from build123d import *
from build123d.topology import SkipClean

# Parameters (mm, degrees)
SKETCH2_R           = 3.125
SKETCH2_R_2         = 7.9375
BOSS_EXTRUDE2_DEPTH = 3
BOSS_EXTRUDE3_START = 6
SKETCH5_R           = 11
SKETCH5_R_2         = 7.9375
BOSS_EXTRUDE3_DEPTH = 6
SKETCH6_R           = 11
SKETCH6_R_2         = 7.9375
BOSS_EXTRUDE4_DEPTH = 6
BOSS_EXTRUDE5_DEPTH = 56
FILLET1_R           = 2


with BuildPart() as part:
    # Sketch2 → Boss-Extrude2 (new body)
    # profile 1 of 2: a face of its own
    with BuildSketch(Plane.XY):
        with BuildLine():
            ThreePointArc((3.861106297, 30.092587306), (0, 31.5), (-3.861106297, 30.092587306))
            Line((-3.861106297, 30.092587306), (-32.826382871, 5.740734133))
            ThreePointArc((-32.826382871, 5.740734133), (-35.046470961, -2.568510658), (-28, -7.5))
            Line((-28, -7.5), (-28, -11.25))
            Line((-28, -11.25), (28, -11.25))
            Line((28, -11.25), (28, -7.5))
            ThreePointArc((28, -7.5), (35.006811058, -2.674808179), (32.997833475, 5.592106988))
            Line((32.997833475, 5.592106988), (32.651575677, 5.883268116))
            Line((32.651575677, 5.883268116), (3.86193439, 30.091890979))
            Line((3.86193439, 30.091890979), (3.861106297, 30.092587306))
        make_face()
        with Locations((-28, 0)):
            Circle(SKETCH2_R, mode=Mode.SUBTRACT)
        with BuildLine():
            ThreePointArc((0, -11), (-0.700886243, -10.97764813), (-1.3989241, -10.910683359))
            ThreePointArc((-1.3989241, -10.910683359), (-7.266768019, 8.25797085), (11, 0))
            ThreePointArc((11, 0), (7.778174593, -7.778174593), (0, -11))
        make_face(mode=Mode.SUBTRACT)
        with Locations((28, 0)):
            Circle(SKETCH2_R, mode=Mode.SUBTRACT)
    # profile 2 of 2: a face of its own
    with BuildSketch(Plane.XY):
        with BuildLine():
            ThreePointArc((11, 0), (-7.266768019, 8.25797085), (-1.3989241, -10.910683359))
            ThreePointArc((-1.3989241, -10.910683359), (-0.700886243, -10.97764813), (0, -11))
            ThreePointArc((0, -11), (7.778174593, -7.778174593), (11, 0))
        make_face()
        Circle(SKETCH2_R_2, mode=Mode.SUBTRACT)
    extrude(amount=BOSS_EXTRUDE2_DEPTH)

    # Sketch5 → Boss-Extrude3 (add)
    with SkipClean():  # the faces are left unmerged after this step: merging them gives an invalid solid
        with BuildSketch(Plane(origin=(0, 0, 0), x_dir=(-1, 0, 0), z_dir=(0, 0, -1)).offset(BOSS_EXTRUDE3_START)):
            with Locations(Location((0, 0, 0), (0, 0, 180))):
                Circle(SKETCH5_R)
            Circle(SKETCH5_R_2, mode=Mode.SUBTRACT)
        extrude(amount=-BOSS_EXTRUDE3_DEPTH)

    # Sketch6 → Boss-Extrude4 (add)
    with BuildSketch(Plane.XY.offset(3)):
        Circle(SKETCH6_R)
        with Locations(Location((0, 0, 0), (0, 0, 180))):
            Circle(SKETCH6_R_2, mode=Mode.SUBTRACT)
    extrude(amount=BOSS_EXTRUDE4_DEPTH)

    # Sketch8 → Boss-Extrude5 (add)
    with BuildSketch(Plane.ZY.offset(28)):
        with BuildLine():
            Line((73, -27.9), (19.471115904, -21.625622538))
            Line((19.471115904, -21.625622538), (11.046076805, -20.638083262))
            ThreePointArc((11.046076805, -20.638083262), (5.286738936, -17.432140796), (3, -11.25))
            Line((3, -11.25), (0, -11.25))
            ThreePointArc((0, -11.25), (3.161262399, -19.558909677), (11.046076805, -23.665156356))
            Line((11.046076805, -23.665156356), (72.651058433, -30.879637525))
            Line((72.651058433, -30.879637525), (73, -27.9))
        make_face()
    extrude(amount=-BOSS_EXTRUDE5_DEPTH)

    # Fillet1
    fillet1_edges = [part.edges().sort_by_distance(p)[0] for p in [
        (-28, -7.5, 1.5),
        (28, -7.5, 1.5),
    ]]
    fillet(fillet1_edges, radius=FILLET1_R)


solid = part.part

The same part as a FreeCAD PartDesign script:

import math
import FreeCAD as App
import Part
import Sketcher
from FreeCAD import Vector


def edges_at(feature, points):
    """Names of the edges that pass closest to the given points."""
    edges = feature.Shape.Edges
    near = lambda p: min(range(len(edges)), key=lambda i: edges[i].distToShape(Part.Vertex(*p))[0])
    return sorted({f"Edge{near(p) + 1}" for p in points})

doc = App.newDocument("Part")
params = doc.addObject("Spreadsheet::Sheet", "Params")
for row, (alias, value) in enumerate([
    ("sketch1_radius", "6 mm"),
    ("sketch1_radius2", "7.5 mm"),
    ("sketch1_diameter", "6.25 mm"),
    ("sketch1_width", "56 mm"),
    ("sketch1_height", "3.75 mm"),
    ("pad1_length", "3 mm"),
    ("sketch2_diameter", "22 mm"),
    ("pad2_length", "6 mm"),
    ("sketch3_diameter", "22 mm"),
    ("pad3_length", "6 mm"),
    ("sketch4_radius", "9.5 mm"),
    ("sketch4_radius2", "12.5 mm"),
    ("sketch4_length", "3 mm"),
    ("pad4_length", "56 mm"),
    ("fillet_radius", "2 mm"),
], start=1):
    params.set(f"A{row}", alias)
    params.set(f"B{row}", "=" + value)
    params.setAlias(f"B{row}", alias)

body = doc.addObject("PartDesign::Body", "Body")

sketch1 = doc.addObject("Sketcher::SketchObject", "Sketch")
body.addObject(sketch1)
sketch1.AttachmentSupport = (doc.XY_Plane, [""])
sketch1.MapMode = "FlatFace"
sketch1.addGeometry([
    Part.ArcOfCircle(Part.Circle(Vector(0, 25.5, 0), Vector(0, 0, 1), 6), math.radians(50), math.radians(130)),
    Part.LineSegment(Vector(-3.8611, 30.0926, 0), Vector(-32.8264, 5.7407, 0)),
    Part.ArcOfCircle(Part.Circle(Vector(-28, 0, 0), Vector(0, 0, 1), 7.5), math.radians(130), math.radians(270)),
    Part.LineSegment(Vector(-28, -7.5, 0), Vector(-28, -11.25, 0)),
    Part.LineSegment(Vector(-28, -11.25, 0), Vector(28, -11.25, 0)),
    Part.LineSegment(Vector(28, -11.25, 0), Vector(28, -7.5, 0)),
    Part.ArcOfCircle(Part.Circle(Vector(28, 0, 0), Vector(0, 0, 1), 7.5), math.radians(-90), math.radians(48)),
    Part.LineSegment(Vector(32.9978, 5.5921, 0), Vector(32.6516, 5.8833, 0)),
    Part.LineSegment(Vector(32.6516, 5.8833, 0), Vector(3.8619, 30.0919, 0)),
    Part.LineSegment(Vector(3.8619, 30.0919, 0), Vector(3.8611, 30.0926, 0)),
    Part.Circle(Vector(-28, 0, 0), Vector(0, 0, 1), 3.125),
    Part.Circle(Vector(28, 0, 0), Vector(0, 0, 1), 3.125),
    Part.Circle(Vector(0, 0, 0), Vector(0, 0, 1), 7.9375),
], False)
sketch1.addConstraint([
    Sketcher.Constraint("Tangent", 0, 2, 1, 1),
    Sketcher.Constraint("Tangent", 1, 2, 2, 1),
    Sketcher.Constraint("Coincident", 2, 2, 3, 1),
    Sketcher.Constraint("Coincident", 3, 2, 4, 1),
    Sketcher.Constraint("Coincident", 4, 2, 5, 1),
    Sketcher.Constraint("Coincident", 5, 2, 6, 1),
    Sketcher.Constraint("Coincident", 6, 2, 7, 1),
    Sketcher.Constraint("Coincident", 7, 2, 8, 1),
    Sketcher.Constraint("Coincident", 8, 2, 9, 1),
    Sketcher.Constraint("Coincident", 9, 2, 0, 1),
    Sketcher.Constraint("Vertical", 3),
    Sketcher.Constraint("Horizontal", 4),
    Sketcher.Constraint("Vertical", 5),
    Sketcher.Constraint("Coincident", 12, 3, -1, 1),
    Sketcher.Constraint("Coincident", 10, 3, 2, 3),
    Sketcher.Constraint("Coincident", 11, 3, 6, 3),
    Sketcher.Constraint("Equal", 2, 6),
    Sketcher.Constraint("Equal", 10, 11),
    Sketcher.Constraint("Symmetric", 2, 3, 6, 3, -1, 1),
    Sketcher.Constraint("Symmetric", 2, 2, 5, 2, -2),
    Sketcher.Constraint("Symmetric", 0, 2, 9, 2, -2),
    Sketcher.Constraint("Parallel", 7, 8),
    Sketcher.Constraint("Parallel", 8, 9),
    Sketcher.Constraint("Vertical", 10, 3, 2, 2),
    Sketcher.Constraint("Radius", 0, 6.0),
    Sketcher.Constraint("Radius", 2, 7.5),
    Sketcher.Constraint("Diameter", 10, 6.25),
    Sketcher.Constraint("DistanceX", 4, 1, 4, 2, 56.0),
    Sketcher.Constraint("Diameter", 12, 15.875),
    Sketcher.Constraint("DistanceY", 2, 2, 0, 3, 33.0),
    Sketcher.Constraint("DistanceY", 3, 2, 3, 1, 3.75),
    Sketcher.Constraint("DistanceX", 8, 2, 6, 2, 29.135899),
    Sketcher.Constraint("Distance", 8, 37.615168),
    Sketcher.Constraint("Distance", 9, 0.001082),
])
sketch1.setExpression("Constraints[24]", "Params.sketch1_radius")
sketch1.setExpression("Constraints[25]", "Params.sketch1_radius2")
sketch1.setExpression("Constraints[26]", "Params.sketch1_diameter")
sketch1.setExpression("Constraints[27]", "Params.sketch1_width")
sketch1.setExpression("Constraints[30]", "Params.sketch1_height")
pad1 = doc.addObject("PartDesign::Pad", "Pad")
body.addObject(pad1)
pad1.Profile = sketch1
pad1.setExpression("Length", "Params.pad1_length")

sketch2 = doc.addObject("Sketcher::SketchObject", "Sketch001")
body.addObject(sketch2)
sketch2.AttachmentSupport = (doc.XY_Plane, [""])
sketch2.MapMode = "FlatFace"
sketch2.AttachmentOffset = App.Placement(Vector(0, 0, -6), App.Rotation())
sketch2.addGeometry([
    Part.Circle(Vector(0, 0, 0), Vector(0, 0, 1), 11),
    Part.Circle(Vector(0, 0, 0), Vector(0, 0, 1), 8),
], False)
sketch2.addConstraint([
    Sketcher.Constraint("Coincident", 0, 3, -1, 1),
    Sketcher.Constraint("Coincident", 1, 3, -1, 1),
    Sketcher.Constraint("Diameter", 0, 22.0),
    Sketcher.Constraint("Diameter", 1, 15.875),
])
sketch2.setExpression("Constraints[2]", "Params.sketch2_diameter")
pad2 = doc.addObject("PartDesign::Pad", "Pad001")
body.addObject(pad2)
pad2.Profile = sketch2
pad2.setExpression("Length", "Params.pad2_length")

sketch3 = doc.addObject("Sketcher::SketchObject", "Sketch002")
body.addObject(sketch3)
sketch3.AttachmentSupport = (doc.XY_Plane, [""])
sketch3.MapMode = "FlatFace"
sketch3.AttachmentOffset = App.Placement(Vector(0, 0, 3), App.Rotation())
sketch3.addGeometry([
    Part.Circle(Vector(0, 0, 0), Vector(0, 0, 1), 11),
    Part.Circle(Vector(0, 0, 0), Vector(0, 0, 1), 8),
], False)
sketch3.addConstraint([
    Sketcher.Constraint("Coincident", 0, 3, -1, 1),
    Sketcher.Constraint("Coincident", 1, 3, -1, 1),
    Sketcher.Constraint("Diameter", 0, 22.0),
    Sketcher.Constraint("Diameter", 1, 15.875),
])
sketch3.setExpression("Constraints[2]", "Params.sketch3_diameter")
pad3 = doc.addObject("PartDesign::Pad", "Pad002")
body.addObject(pad3)
pad3.Profile = sketch3
pad3.setExpression("Length", "Params.pad3_length")

sketch4 = doc.addObject("Sketcher::SketchObject", "Sketch003")
body.addObject(sketch4)
sketch4.AttachmentSupport = (doc.YZ_Plane, [""])
sketch4.MapMode = "FlatFace"
sketch4.AttachmentOffset = App.Placement(Vector(0, 0, -28), App.Rotation())
sketch4.addGeometry([
    Part.LineSegment(Vector(-27.9, 73, 0), Vector(-21.6, 19.5, 0)),
    Part.LineSegment(Vector(-21.6, 19.5, 0), Vector(-20.6, 11, 0)),
    Part.ArcOfCircle(Part.Circle(Vector(-11.2, 12.5, 0), Vector(0, 0, 1), 9.5), math.radians(-171), math.radians(-90)),
    Part.LineSegment(Vector(-11.2, 3, 0), Vector(-11.2, 0, 0)),
    Part.ArcOfCircle(Part.Circle(Vector(-11.2, 12.5, 0), Vector(0, 0, 1), 12.5), math.radians(-173), math.radians(-90)),
    Part.LineSegment(Vector(-23.7, 11, 0), Vector(-30.9, 72.7, 0)),
    Part.LineSegment(Vector(-30.9, 72.7, 0), Vector(-27.9, 73, 0)),
], False)
sketch4.addConstraint([
    Sketcher.Constraint("Coincident", 0, 2, 1, 1),
    Sketcher.Constraint("Coincident", 1, 2, 2, 1),
    Sketcher.Constraint("Coincident", 2, 2, 3, 1),
    Sketcher.Constraint("Coincident", 3, 2, 4, 2),
    Sketcher.Constraint("Tangent", 4, 1, 5, 1),
    Sketcher.Constraint("Coincident", 5, 2, 6, 1),
    Sketcher.Constraint("Coincident", 6, 2, 0, 1),
    Sketcher.Constraint("Vertical", 3),
    Sketcher.Constraint("Coincident", 4, 3, 2, 3),
    Sketcher.Constraint("PointOnObject", 3, 2, -1),
    Sketcher.Constraint("Parallel", 0, 1),
    Sketcher.Constraint("Perpendicular", 5, 6),
    Sketcher.Constraint("Horizontal", 1, 2, 4, 1),
    Sketcher.Constraint("Vertical", 4, 3, 2, 2),
    Sketcher.Constraint("Radius", 2, 9.5),
    Sketcher.Constraint("Radius", 4, 12.5),
    Sketcher.Constraint("Distance", 6, 3.0),
    Sketcher.Constraint("DistanceY", -1, 1, 6, 2, 73.0),
    Sketcher.Constraint("DistanceX", 6, 2, -1, 1, 27.9),
    Sketcher.Constraint("DistanceX", 2, 3, -1, 1, 11.25),
    Sketcher.Constraint("Distance", 1, 8.482719),
])
sketch4.setExpression("Constraints[14]", "Params.sketch4_radius")
sketch4.setExpression("Constraints[15]", "Params.sketch4_radius2")
sketch4.setExpression("Constraints[16]", "Params.sketch4_length")
pad4 = doc.addObject("PartDesign::Pad", "Pad003")
body.addObject(pad4)
pad4.Profile = sketch4
pad4.setExpression("Length", "Params.pad4_length")
doc.recompute()

fillet = doc.addObject("PartDesign::Fillet", "Fillet")
body.addObject(fillet)
fillet.Base = (pad4, edges_at(pad4, [(-28, -7.5, 1.5), (28, -7.5, 1.5)]))
fillet.setExpression("Radius", "Params.fillet_radius")

doc.recompute()
